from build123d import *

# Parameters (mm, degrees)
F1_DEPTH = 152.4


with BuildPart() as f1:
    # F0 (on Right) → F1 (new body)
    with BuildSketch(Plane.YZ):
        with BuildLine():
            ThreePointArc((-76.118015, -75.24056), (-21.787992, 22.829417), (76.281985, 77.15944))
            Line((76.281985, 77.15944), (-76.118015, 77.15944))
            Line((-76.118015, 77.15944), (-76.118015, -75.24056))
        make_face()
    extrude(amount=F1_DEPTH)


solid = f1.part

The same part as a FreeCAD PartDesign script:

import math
import FreeCAD as App
import Part
import Sketcher

V = App.Vector
Q = App.Units.Quantity

doc = App.newDocument("Part")
body = doc.addObject("PartDesign::Body", "Body")

sketch1 = doc.addObject("Sketcher::SketchObject", "Sketch")
body.addObject(sketch1)
sketch1.AttachmentSupport = (doc.YZ_Plane, [""])
sketch1.MapMode = "FlatFace"
sketch1.addGeometry(Part.ArcOfCircle(Part.Circle(V(121.896107, -120.854682, 0), V(0, 0, 1), 203.200002), math.radians(102.97224), math.radians(167.02776)), False)
sketch1.addGeometry(Part.LineSegment(V(76.281985, 77.15944, 0), V(-76.118015, 77.15944, 0)), False)
sketch1.addGeometry(Part.LineSegment(V(-76.118015, 77.15944, 0), V(-76.118015, -75.24056, 0)), False)
sketch1.addConstraint(Sketcher.Constraint("Coincident", 0, 1, 1, 1))
sketch1.addConstraint(Sketcher.Constraint("Coincident", 1, 2, 2, 1))
sketch1.addConstraint(Sketcher.Constraint("Coincident", 2, 2, 0, 2))
sketch1.addConstraint(Sketcher.Constraint("Horizontal", 1))
sketch1.addConstraint(Sketcher.Constraint("Vertical", 2))
sketch1.addConstraint(Sketcher.Constraint("Equal", 1, 2))
sketch1.addConstraint(Sketcher.Constraint("Radius", 0, Q("8.0000001 in")))
sketch1.addConstraint(Sketcher.Constraint("DistanceX", 1, 2, 1, 1, Q("6 in")))
sketch1.addConstraint(Sketcher.Constraint("DistanceY", -1, 1, 0, 1, Q("77.15944 mm")))
sketch1.addConstraint(Sketcher.Constraint("DistanceX", -1, 1, 0, 3, Q("121.896107 mm")))
pad1 = doc.addObject("PartDesign::Pad", "Pad")
body.addObject(pad1)
pad1.Profile = sketch1
pad1.Length = Q("6 in")

doc.recompute()
